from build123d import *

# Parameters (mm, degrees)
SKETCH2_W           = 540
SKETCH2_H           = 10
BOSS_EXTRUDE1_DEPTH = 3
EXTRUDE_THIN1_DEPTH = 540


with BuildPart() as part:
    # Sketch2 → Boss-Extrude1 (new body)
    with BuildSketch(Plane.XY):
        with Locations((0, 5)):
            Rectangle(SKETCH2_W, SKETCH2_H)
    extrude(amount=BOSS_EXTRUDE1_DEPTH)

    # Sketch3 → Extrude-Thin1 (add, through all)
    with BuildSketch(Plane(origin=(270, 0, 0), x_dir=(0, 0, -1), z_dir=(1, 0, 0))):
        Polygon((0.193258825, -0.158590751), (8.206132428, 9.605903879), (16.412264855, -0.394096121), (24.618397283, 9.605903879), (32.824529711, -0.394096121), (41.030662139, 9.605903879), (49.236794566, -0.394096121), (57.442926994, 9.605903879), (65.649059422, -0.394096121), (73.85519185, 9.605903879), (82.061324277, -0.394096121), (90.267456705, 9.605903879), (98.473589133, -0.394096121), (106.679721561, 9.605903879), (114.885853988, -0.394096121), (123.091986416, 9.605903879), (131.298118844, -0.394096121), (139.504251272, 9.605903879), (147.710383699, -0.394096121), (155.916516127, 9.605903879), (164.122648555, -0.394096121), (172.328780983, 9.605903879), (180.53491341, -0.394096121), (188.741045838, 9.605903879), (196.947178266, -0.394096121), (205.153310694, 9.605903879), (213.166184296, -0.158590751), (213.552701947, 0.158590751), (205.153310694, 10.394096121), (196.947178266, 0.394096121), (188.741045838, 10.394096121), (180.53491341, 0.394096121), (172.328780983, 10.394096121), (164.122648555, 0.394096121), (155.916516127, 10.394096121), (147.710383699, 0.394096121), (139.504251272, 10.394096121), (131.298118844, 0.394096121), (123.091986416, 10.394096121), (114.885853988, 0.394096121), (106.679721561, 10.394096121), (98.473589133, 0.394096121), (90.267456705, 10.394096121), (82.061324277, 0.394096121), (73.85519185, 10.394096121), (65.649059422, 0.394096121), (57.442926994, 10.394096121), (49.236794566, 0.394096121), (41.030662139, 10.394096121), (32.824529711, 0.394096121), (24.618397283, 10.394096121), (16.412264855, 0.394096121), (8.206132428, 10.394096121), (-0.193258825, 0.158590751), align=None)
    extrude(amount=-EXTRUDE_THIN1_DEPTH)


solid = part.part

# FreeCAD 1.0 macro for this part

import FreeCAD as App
import Part
import Sketcher

V = App.Vector
Q = App.Units.Quantity

doc = App.newDocument("Part")
params = doc.addObject("Spreadsheet::Sheet", "Params")
for row, (alias, value) in enumerate([
    ("sketch1_width", "540 mm"),
    ("sketch1_height", "10 mm"),
    ("pad1_length", "3 mm"),
    ("sketch2_length", "0.5 mm"),
    ("pad2_length", "540 mm"),
], start=1):
    params.set(f"A{row}", alias)
    params.set(f"B{row}", "=" + value)
    params.setAlias(f"B{row}", alias)

body = doc.addObject("PartDesign::Body", "Body")

# Sketch on XY plane
sketch1 = body.newObject("Sketcher::SketchObject", "Sketch")
sketch1.AttachmentSupport = (doc.getObject("XY_Plane"), [""])
sketch1.MapMode = "FlatFace"
sketch1.addGeometry(Part.LineSegment(V(-270, 10, 0), V(-270, 0, 0)), False)
sketch1.addGeometry(Part.LineSegment(V(-270, 0, 0), V(270, 0, 0)), False)
sketch1.addGeometry(Part.LineSegment(V(270, 0, 0), V(270, 10, 0)), False)
sketch1.addGeometry(Part.LineSegment(V(270, 10, 0), V(-270, 10, 0)), False)
sketch1.addConstraint(Sketcher.Constraint("Coincident", 0, 2, 1, 1))
sketch1.addConstraint(Sketcher.Constraint("Coincident", 1, 2, 2, 1))
sketch1.addConstraint(Sketcher.Constraint("Coincident", 2, 2, 3, 1))
sketch1.addConstraint(Sketcher.Constraint("Coincident", 3, 2, 0, 1))
sketch1.addConstraint(Sketcher.Constraint("Vertical", 0))
sketch1.addConstraint(Sketcher.Constraint("Horizontal", 1))
sketch1.addConstraint(Sketcher.Constraint("Vertical", 2))
sketch1.addConstraint(Sketcher.Constraint("Horizontal", 3))
sketch1.addConstraint(Sketcher.Constraint("Symmetric", 0, 2, 1, 2, -1, 1))
sketch1.addConstraint(Sketcher.Constraint("DistanceX", 1, 1, 1, 2, Q("540 mm")))
sketch1.addConstraint(Sketcher.Constraint("DistanceY", 0, 2, 0, 1, Q("10 mm")))
sketch1.setExpression("Constraints[9]", "Params.sketch1_width")
sketch1.setExpression("Constraints[10]", "Params.sketch1_height")
pad1 = body.newObject("PartDesign::Pad", "Pad")
pad1.Profile = sketch1
pad1.setExpression("Length", "Params.pad1_length")

# Sketch on YZ plane
sketch2 = body.newObject("Sketcher::SketchObject", "Sketch001")
sketch2.AttachmentSupport = (doc.getObject("YZ_Plane"), [""])
sketch2.MapMode = "FlatFace"
sketch2.AttachmentOffset = App.Placement(V(0, 0, 270), App.Rotation())
sketch2.addGeometry(Part.LineSegment(V(-0.16, -0.19, 0), V(9.61, -8.21, 0)), False)
sketch2.addGeometry(Part.LineSegment(V(9.61, -8.21, 0), V(-0.39, -16.41, 0)), False)
sketch2.addGeometry(Part.LineSegment(V(-0.39, -16.41, 0), V(9.61, -24.62, 0)), False)
sketch2.addGeometry(Part.LineSegment(V(9.61, -24.62, 0), V(-0.39, -32.82, 0)), False)
sketch2.addGeometry(Part.LineSegment(V(-0.39, -32.82, 0), V(9.61, -41.03, 0)), False)
sketch2.addGeometry(Part.LineSegment(V(9.61, -41.03, 0), V(-0.39, -49.24, 0)), False)
sketch2.addGeometry(Part.LineSegment(V(-0.39, -49.24, 0), V(9.61, -57.44, 0)), False)
sketch2.addGeometry(Part.LineSegment(V(9.61, -57.44, 0), V(-0.39, -65.65, 0)), False)
sketch2.addGeometry(Part.LineSegment(V(-0.39, -65.65, 0), V(9.61, -73.86, 0)), False)
sketch2.addGeometry(Part.LineSegment(V(9.61, -73.86, 0), V(-0.39, -82.06, 0)), False)
sketch2.addGeometry(Part.LineSegment(V(-0.39, -82.06, 0), V(9.61, -90.27, 0)), False)
sketch2.addGeometry(Part.LineSegment(V(9.61, -90.27, 0), V(-0.39, -98.47, 0)), False)
sketch2.addGeometry(Part.LineSegment(V(-0.39, -98.47, 0), V(9.61, -106.68, 0)), False)
sketch2.addGeometry(Part.LineSegment(V(9.61, -106.68, 0), V(-0.39, -114.89, 0)), False)
sketch2.addGeometry(Part.LineSegment(V(-0.39, -114.89, 0), V(9.61, -123.09, 0)), False)
sketch2.addGeometry(Part.LineSegment(V(9.61, -123.09, 0), V(-0.39, -131.3, 0)), False)
sketch2.addGeometry(Part.LineSegment(V(-0.39, -131.3, 0), V(9.61, -139.5, 0)), False)
sketch2.addGeometry(Part.LineSegment(V(9.61, -139.5, 0), V(-0.39, -147.71, 0)), False)
sketch2.addGeometry(Part.LineSegment(V(-0.39, -147.71, 0), V(9.61, -155.92, 0)), False)
sketch2.addGeometry(Part.LineSegment(V(9.61, -155.92, 0), V(-0.39, -164.12, 0)), False)
sketch2.addGeometry(Part.LineSegment(V(-0.39, -164.12, 0), V(9.61, -172.33, 0)), False)
sketch2.addGeometry(Part.LineSegment(V(9.61, -172.33, 0), V(-0.39, -180.53, 0)), False)
sketch2.addGeometry(Part.LineSegment(V(-0.39, -180.53, 0), V(9.61, -188.74, 0)), False)
sketch2.addGeometry(Part.LineSegment(V(9.61, -188.74, 0), V(-0.39, -196.95, 0)), False)
sketch2.addGeometry(Part.LineSegment(V(-0.39, -196.95, 0), V(9.61, -205.15, 0)), False)
sketch2.addGeometry(Part.LineSegment(V(9.61, -205.15, 0), V(-0.16, -213.17, 0)), False)
sketch2.addGeometry(Part.LineSegment(V(-0.16, -213.17, 0), V(0.16, -213.55, 0)), False)
sketch2.addGeometry(Part.LineSegment(V(0.16, -213.55, 0), V(10.39, -205.15, 0)), False)
sketch2.addGeometry(Part.LineSegment(V(10.39, -205.15, 0), V(0.39, -196.95, 0)), False)
sketch2.addGeometry(Part.LineSegment(V(0.39, -196.95, 0), V(10.39, -188.74, 0)), False)
sketch2.addGeometry(Part.LineSegment(V(10.39, -188.74, 0), V(0.39, -180.53, 0)), False)
sketch2.addGeometry(Part.LineSegment(V(0.39, -180.53, 0), V(10.39, -172.33, 0)), False)
sketch2.addGeometry(Part.LineSegment(V(10.39, -172.33, 0), V(0.39, -164.12, 0)), False)
sketch2.addGeometry(Part.LineSegment(V(0.39, -164.12, 0), V(10.39, -155.92, 0)), False)
sketch2.addGeometry(Part.LineSegment(V(10.39, -155.92, 0), V(0.39, -147.71, 0)), False)
sketch2.addGeometry(Part.LineSegment(V(0.39, -147.71, 0), V(10.39, -139.5, 0)), False)
sketch2.addGeometry(Part.LineSegment(V(10.39, -139.5, 0), V(0.39, -131.3, 0)), False)
sketch2.addGeometry(Part.LineSegment(V(0.39, -131.3, 0), V(10.39, -123.09, 0)), False)
sketch2.addGeometry(Part.LineSegment(V(10.39, -123.09, 0), V(0.39, -114.89, 0)), False)
sketch2.addGeometry(Part.LineSegment(V(0.39, -114.89, 0), V(10.39, -106.68, 0)), False)
sketch2.addGeometry(Part.LineSegment(V(10.39, -106.68, 0), V(0.39, -98.47, 0)), False)
sketch2.addGeometry(Part.LineSegment(V(0.39, -98.47, 0), V(10.39, -90.27, 0)), False)
sketch2.addGeometry(Part.LineSegment(V(10.39, -90.27, 0), V(0.39, -82.06, 0)), False)
sketch2.addGeometry(Part.LineSegment(V(0.39, -82.06, 0), V(10.39, -73.86, 0)), False)
sketch2.addGeometry(Part.LineSegment(V(10.39, -73.86, 0), V(0.39, -65.65, 0)), False)
sketch2.addGeometry(Part.LineSegment(V(0.39, -65.65, 0), V(10.39, -57.44, 0)), False)
sketch2.addGeometry(Part.LineSegment(V(10.39, -57.44, 0), V(0.39, -49.24, 0)), False)
sketch2.addGeometry(Part.LineSegment(V(0.39, -49.24, 0), V(10.39, -41.03, 0)), False)
sketch2.addGeometry(Part.LineSegment(V(10.39, -41.03, 0), V(0.39, -32.82, 0)), False)
sketch2.addGeometry(Part.LineSegment(V(0.39, -32.82, 0), V(10.39, -24.62, 0)), False)
sketch2.addGeometry(Part.LineSegment(V(10.39, -24.62, 0), V(0.39, -16.41, 0)), False)
sketch2.addGeometry(Part.LineSegment(V(0.39, -16.41, 0), V(10.39, -8.21, 0)), False)
sketch2.addGeometry(Part.LineSegment(V(10.39, -8.21, 0), V(0.16, 0.19, 0)), False)
sketch2.addGeometry(Part.LineSegment(V(0.16, 0.19, 0), V(-0.16, -0.19, 0)), False)
sketch2.addConstraint(Sketcher.Constraint("Coincident", 0, 2, 1, 1))
sketch2.addConstraint(Sketcher.Constraint("Coincident", 1, 2, 2, 1))
sketch2.addConstraint(Sketcher.Constraint("Coincident", 2, 2, 3, 1))
sketch2.addConstraint(Sketcher.Constraint("Coincident", 3, 2, 4, 1))
sketch2.addConstraint(Sketcher.Constraint("Coincident", 4, 2, 5, 1))
sketch2.addConstraint(Sketcher.Constraint("Coincident", 5, 2, 6, 1))
sketch2.addConstraint(Sketcher.Constraint("Coincident", 6, 2, 7, 1))
sketch2.addConstraint(Sketcher.Constraint("Coincident", 7, 2, 8, 1))
sketch2.addConstraint(Sketcher.Constraint("Coincident", 8, 2, 9, 1))
sketch2.addConstraint(Sketcher.Constraint("Coincident", 9, 2, 10, 1))
sketch2.addConstraint(Sketcher.Constraint("Coincident", 10, 2, 11, 1))
sketch2.addConstraint(Sketcher.Constraint("Coincident", 11, 2, 12, 1))
sketch2.addConstraint(Sketcher.Constraint("Coincident", 12, 2, 13, 1))
sketch2.addConstraint(Sketcher.Constraint("Coincident", 13, 2, 14, 1))
sketch2.addConstraint(Sketcher.Constraint("Coincident", 14, 2, 15, 1))
sketch2.addConstraint(Sketcher.Constraint("Coincident", 15, 2, 16, 1))
sketch2.addConstraint(Sketcher.Constraint("Coincident", 16, 2, 17, 1))
sketch2.addConstraint(Sketcher.Constraint("Coincident", 17, 2, 18, 1))
sketch2.addConstraint(Sketcher.Constraint("Coincident", 18, 2, 19, 1))
sketch2.addConstraint(Sketcher.Constraint("Coincident", 19, 2, 20, 1))
sketch2.addConstraint(Sketcher.Constraint("Coincident", 20, 2, 21, 1))
sketch2.addConstraint(Sketcher.Constraint("Coincident", 21, 2, 22, 1))
sketch2.addConstraint(Sketcher.Constraint("Coincident", 22, 2, 23, 1))
sketch2.addConstraint(Sketcher.Constraint("Coincident", 23, 2, 24, 1))
sketch2.addConstraint(Sketcher.Constraint("Coincident", 24, 2, 25, 1))
sketch2.addConstraint(Sketcher.Constraint("Coincident", 25, 2, 26, 1))
sketch2.addConstraint(Sketcher.Constraint("Coincident", 26, 2, 27, 1))
sketch2.addConstraint(Sketcher.Constraint("Coincident", 27, 2, 28, 1))
sketch2.addConstraint(Sketcher.Constraint("Coincident", 28, 2, 29, 1))
sketch2.addConstraint(Sketcher.Constraint("Coincident", 29, 2, 30, 1))
sketch2.addConstraint(Sketcher.Constraint("Coincident", 30, 2, 31, 1))
sketch2.addConstraint(Sketcher.Constraint("Coincident", 31, 2, 32, 1))
sketch2.addConstraint(Sketcher.Constraint("Coincident", 32, 2, 33, 1))
sketch2.addConstraint(Sketcher.Constraint("Coincident", 33, 2, 34, 1))
sketch2.addConstraint(Sketcher.Constraint("Coincident", 34, 2, 35, 1))
sketch2.addConstraint(Sketcher.Constraint("Coincident", 35, 2, 36, 1))
sketch2.addConstraint(Sketcher.Constraint("Coincident", 36, 2, 37, 1))
sketch2.addConstraint(Sketcher.Constraint("Coincident", 37, 2, 38, 1))
sketch2.addConstraint(Sketcher.Constraint("Coincident", 38, 2, 39, 1))
sketch2.addConstraint(Sketcher.Constraint("Coincident", 39, 2, 40, 1))
sketch2.addConstraint(Sketcher.Constraint("Coincident", 40, 2, 41, 1))
sketch2.addConstraint(Sketcher.Constraint("Coincident", 41, 2, 42, 1))
sketch2.addConstraint(Sketcher.Constraint("Coincident", 42, 2, 43, 1))
sketch2.addConstraint(Sketcher.Constraint("Coincident", 43, 2, 44, 1))
sketch2.addConstraint(Sketcher.Constraint("Coincident", 44, 2, 45, 1))
sketch2.addConstraint(Sketcher.Constraint("Coincident", 45, 2, 46, 1))
sketch2.addConstraint(Sketcher.Constraint("Coincident", 46, 2, 47, 1))
sketch2.addConstraint(Sketcher.Constraint("Coincident", 47, 2, 48, 1))
sketch2.addConstraint(Sketcher.Constraint("Coincident", 48, 2, 49, 1))
sketch2.addConstraint(Sketcher.Constraint("Coincident", 49, 2, 50, 1))
sketch2.addConstraint(Sketcher.Constraint("Coincident", 50, 2, 51, 1))
sketch2.addConstraint(Sketcher.Constraint("Coincident", 51, 2, 52, 1))
sketch2.addConstraint(Sketcher.Constraint("Coincident", 52, 2, 53, 1))
sketch2.addConstraint(Sketcher.Constraint("Coincident", 53, 2, 0, 1))
sketch2.addConstraint(Sketcher.Constraint("Symmetric", 52, 2, 53, 2, -1, 1))
sketch2.addConstraint(Sketcher.Constraint("Symmetric", 23, 2, 28, 2, -2))
sketch2.addConstraint(Sketcher.Constraint("Symmetric", 21, 2, 30, 2, -2))
sketch2.addConstraint(Sketcher.Constraint("Symmetric", 19, 2, 32, 2, -2))
sketch2.addConstraint(Sketcher.Constraint("Symmetric", 17, 2, 34, 2, -2))
sketch2.addConstraint(Sketcher.Constraint("Symmetric", 15, 2, 36, 2, -2))
sketch2.addConstraint(Sketcher.Constraint("Symmetric", 13, 2, 38, 2, -2))
sketch2.addConstraint(Sketcher.Constraint("Symmetric", 11, 2, 40, 2, -2))
sketch2.addConstraint(Sketcher.Constraint("Symmetric", 9, 2, 42, 2, -2))
sketch2.addConstraint(Sketcher.Constraint("Symmetric", 7, 2, 44, 2, -2))
sketch2.addConstraint(Sketcher.Constraint("Symmetric", 5, 2, 46, 2, -2))
sketch2.addConstraint(Sketcher.Constraint("Symmetric", 3, 2, 48, 2, -2))
sketch2.addConstraint(Sketcher.Constraint("Symmetric", 1, 2, 50, 2, -2))
sketch2.addConstraint(Sketcher.Constraint("Parallel", 0, 2))
sketch2.addConstraint(Sketcher.Constraint("Parallel", 1, 3))
sketch2.addConstraint(Sketcher.Constraint("Parallel", 2, 4))
sketch2.addConstraint(Sketcher.Constraint("Parallel", 3, 5))
sketch2.addConstraint(Sketcher.Constraint("Parallel", 4, 6))
sketch2.addConstraint(Sketcher.Constraint("Parallel", 5, 7))
sketch2.addConstraint(Sketcher.Constraint("Parallel", 6, 8))
sketch2.addConstraint(Sketcher.Constraint("Parallel", 7, 9))
sketch2.addConstraint(Sketcher.Constraint("Parallel", 8, 10))
sketch2.addConstraint(Sketcher.Constraint("Parallel", 9, 11))
sketch2.addConstraint(Sketcher.Constraint("Parallel", 10, 12))
sketch2.addConstraint(Sketcher.Constraint("Parallel", 11, 13))
sketch2.addConstraint(Sketcher.Constraint("Parallel", 12, 14))
sketch2.addConstraint(Sketcher.Constraint("Parallel", 13, 15))
sketch2.addConstraint(Sketcher.Constraint("Parallel", 14, 16))
sketch2.addConstraint(Sketcher.Constraint("Parallel", 15, 17))
sketch2.addConstraint(Sketcher.Constraint("Parallel", 16, 18))
sketch2.addConstraint(Sketcher.Constraint("Parallel", 17, 19))
sketch2.addConstraint(Sketcher.Constraint("Parallel", 18, 20))
sketch2.addConstraint(Sketcher.Constraint("Parallel", 19, 21))
sketch2.addConstraint(Sketcher.Constraint("Parallel", 20, 22))
sketch2.addConstraint(Sketcher.Constraint("Parallel", 21, 23))
sketch2.addConstraint(Sketcher.Constraint("Parallel", 22, 24))
sketch2.addConstraint(Sketcher.Constraint("Parallel", 23, 25))
sketch2.addConstraint(Sketcher.Constraint("Perpendicular", 25, 26))
sketch2.addConstraint(Sketcher.Constraint("Perpendicular", 26, 27))
sketch2.addConstraint(Sketcher.Constraint("Parallel", 24, 28))
sketch2.addConstraint(Sketcher.Constraint("Parallel", 27, 29))
sketch2.addConstraint(Sketcher.Constraint("Parallel", 28, 30))
sketch2.addConstraint(Sketcher.Constraint("Parallel", 29, 31))
sketch2.addConstraint(Sketcher.Constraint("Parallel", 30, 32))
sketch2.addConstraint(Sketcher.Constraint("Parallel", 31, 33))
sketch2.addConstraint(Sketcher.Constraint("Parallel", 32, 34))
sketch2.addConstraint(Sketcher.Constraint("Parallel", 33, 35))
sketch2.addConstraint(Sketcher.Constraint("Parallel", 34, 36))
sketch2.addConstraint(Sketcher.Constraint("Parallel", 35, 37))
sketch2.addConstraint(Sketcher.Constraint("Parallel", 36, 38))
sketch2.addConstraint(Sketcher.Constraint("Parallel", 37, 39))
sketch2.addConstraint(Sketcher.Constraint("Parallel", 38, 40))
sketch2.addConstraint(Sketcher.Constraint("Parallel", 39, 41))
sketch2.addConstraint(Sketcher.Constraint("Parallel", 40, 42))
sketch2.addConstraint(Sketcher.Constraint("Parallel", 41, 43))
sketch2.addConstraint(Sketcher.Constraint("Parallel", 42, 44))
sketch2.addConstraint(Sketcher.Constraint("Parallel", 43, 45))
sketch2.addConstraint(Sketcher.Constraint("Parallel", 44, 46))
sketch2.addConstraint(Sketcher.Constraint("Parallel", 45, 47))
sketch2.addConstraint(Sketcher.Constraint("Parallel", 46, 48))
sketch2.addConstraint(Sketcher.Constraint("Parallel", 47, 49))
sketch2.addConstraint(Sketcher.Constraint("Parallel", 48, 50))
sketch2.addConstraint(Sketcher.Constraint("Parallel", 49, 51))
sketch2.addConstraint(Sketcher.Constraint("Parallel", 50, 52))
sketch2.addConstraint(Sketcher.Constraint("Perpendicular", 52, 53))
sketch2.addConstraint(Sketcher.Constraint("Horizontal", 24, 2, 27, 2))
sketch2.addConstraint(Sketcher.Constraint("Horizontal", 22, 2, 29, 2))
sketch2.addConstraint(Sketcher.Constraint("Horizontal", 20, 2, 31, 2))
sketch2.addConstraint(Sketcher.Constraint("Horizontal", 18, 2, 33, 2))
sketch2.addConstraint(Sketcher.Constraint("Horizontal", 16, 2, 35, 2))
sketch2.addConstraint(Sketcher.Constraint("Horizontal", 14, 2, 37, 2))
sketch2.addConstraint(Sketcher.Constraint("Horizontal", 12, 2, 39, 2))
sketch2.addConstraint(Sketcher.Constraint("Horizontal", 10, 2, 41, 2))
sketch2.addConstraint(Sketcher.Constraint("Horizontal", 8, 2, 43, 2))
sketch2.addConstraint(Sketcher.Constraint("Horizontal", 6, 2, 45, 2))
sketch2.addConstraint(Sketcher.Constraint("Horizontal", 4, 2, 47, 2))
sketch2.addConstraint(Sketcher.Constraint("Horizontal", 2, 2, 49, 2))
sketch2.addConstraint(Sketcher.Constraint("Horizontal", 0, 2, 51, 2))
sketch2.addConstraint(Sketcher.Constraint("Vertical", 0, 2, 2, 2))
sketch2.addConstraint(Sketcher.Constraint("Vertical", 2, 2, 4, 2))
sketch2.addConstraint(Sketcher.Constraint("Vertical", 4, 2, 6, 2))
sketch2.addConstraint(Sketcher.Constraint("Vertical", 6, 2, 8, 2))
sketch2.addConstraint(Sketcher.Constraint("Vertical", 8, 2, 10, 2))
sketch2.addConstraint(Sketcher.Constraint("Vertical", 10, 2, 12, 2))
sketch2.addConstraint(Sketcher.Constraint("Vertical", 12, 2, 14, 2))
sketch2.addConstraint(Sketcher.Constraint("Vertical", 14, 2, 16, 2))
sketch2.addConstraint(Sketcher.Constraint("Vertical", 16, 2, 18, 2))
sketch2.addConstraint(Sketcher.Constraint("Vertical", 18, 2, 20, 2))
sketch2.addConstraint(Sketcher.Constraint("Vertical", 20, 2, 22, 2))
sketch2.addConstraint(Sketcher.Constraint("Vertical", 22, 2, 24, 2))
sketch2.addConstraint(Sketcher.Constraint("Vertical", 26, 2, 52, 2))
sketch2.addConstraint(Sketcher.Constraint("Vertical", 25, 2, 53, 2))
sketch2.addConstraint(Sketcher.Constraint("DistanceX", 1, 2, 0, 2, Q("10 mm")))
sketch2.addConstraint(Sketcher.Constraint("Distance", 26, Q("0.5 mm")))
sketch2.addConstraint(Sketcher.Constraint("DistanceY", 26, 2, -1, 1, Q("213.552702 mm")))
sketch2.setExpression("Constraints[147]", "Params.sketch2_length")
pad2 = body.newObject("PartDesign::Pad", "Pad001")
pad2.Profile = sketch2
pad2.setExpression("Length", "Params.pad2_length")
pad2.Reversed = True

doc.recompute()
